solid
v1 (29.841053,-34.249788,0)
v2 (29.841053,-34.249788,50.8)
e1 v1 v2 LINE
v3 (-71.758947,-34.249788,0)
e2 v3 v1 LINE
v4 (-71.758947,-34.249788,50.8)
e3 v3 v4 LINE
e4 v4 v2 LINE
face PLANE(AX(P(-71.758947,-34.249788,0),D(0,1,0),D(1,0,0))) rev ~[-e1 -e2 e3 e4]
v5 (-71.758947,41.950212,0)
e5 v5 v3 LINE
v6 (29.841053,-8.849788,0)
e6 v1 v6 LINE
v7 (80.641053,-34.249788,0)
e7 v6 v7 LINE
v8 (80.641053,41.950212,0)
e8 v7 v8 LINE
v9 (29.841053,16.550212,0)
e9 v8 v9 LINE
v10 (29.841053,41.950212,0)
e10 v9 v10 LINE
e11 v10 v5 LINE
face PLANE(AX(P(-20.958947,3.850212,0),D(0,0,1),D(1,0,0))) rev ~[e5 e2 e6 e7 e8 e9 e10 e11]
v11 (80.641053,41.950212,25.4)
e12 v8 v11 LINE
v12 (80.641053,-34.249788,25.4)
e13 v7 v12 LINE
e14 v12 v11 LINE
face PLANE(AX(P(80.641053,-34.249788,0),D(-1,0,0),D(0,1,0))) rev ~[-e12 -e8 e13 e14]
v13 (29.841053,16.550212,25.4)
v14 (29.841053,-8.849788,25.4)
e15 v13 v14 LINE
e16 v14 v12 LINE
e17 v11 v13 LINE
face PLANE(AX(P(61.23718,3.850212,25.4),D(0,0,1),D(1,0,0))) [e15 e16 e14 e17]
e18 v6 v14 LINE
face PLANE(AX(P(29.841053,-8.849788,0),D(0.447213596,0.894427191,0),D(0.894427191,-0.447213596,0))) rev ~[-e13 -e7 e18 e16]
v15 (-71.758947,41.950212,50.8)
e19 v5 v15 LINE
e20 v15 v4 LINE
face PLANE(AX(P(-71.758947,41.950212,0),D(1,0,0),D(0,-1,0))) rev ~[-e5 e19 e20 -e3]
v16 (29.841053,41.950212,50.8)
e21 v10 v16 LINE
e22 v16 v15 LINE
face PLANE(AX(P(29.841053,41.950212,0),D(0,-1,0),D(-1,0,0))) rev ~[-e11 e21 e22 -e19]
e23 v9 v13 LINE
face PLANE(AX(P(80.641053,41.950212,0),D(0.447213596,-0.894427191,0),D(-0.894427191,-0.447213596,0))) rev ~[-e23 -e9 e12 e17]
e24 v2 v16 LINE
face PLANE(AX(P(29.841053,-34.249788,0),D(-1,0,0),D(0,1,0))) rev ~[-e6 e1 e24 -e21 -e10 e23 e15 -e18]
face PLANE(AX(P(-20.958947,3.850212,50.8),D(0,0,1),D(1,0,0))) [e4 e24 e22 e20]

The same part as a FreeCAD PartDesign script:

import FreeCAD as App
import Part
import Sketcher
from FreeCAD import Vector
Q = App.Units.Quantity


def add_polygon(sketch, points):
    """Adds a closed chain of lines whose ends are joined by coincident constraints."""
    first, n = sketch.GeometryCount, len(points)
    for a, b in zip(points, points[1:] + points[:1]):
        sketch.addGeometry(Part.LineSegment(App.Vector(*a, 0), App.Vector(*b, 0)), False)
    for i in range(n):
        sketch.addConstraint(Sketcher.Constraint("Coincident", first + i, 2, first + (i + 1) % n, 1))

doc = App.newDocument("Part")
body = doc.addObject("PartDesign::Body", "Body")

sketch1 = body.newObject("Sketcher::SketchObject", "Sketch")
sketch1.AttachmentSupport = (doc.getObject("XY_Plane"), [""])
sketch1.MapMode = "FlatFace"
add_polygon(sketch1, [(81, 42), (30, 17), (30, -9), (81, -34)])
sketch1.addConstraint(Sketcher.Constraint("Vertical", 1))
sketch1.addConstraint(Sketcher.Constraint("Vertical", 3))
sketch1.addConstraint(Sketcher.Constraint("Equal", 0, 2))
sketch1.addConstraint(Sketcher.Constraint("DistanceY", 1, 2, 1, 1, Q("1 in")))
sketch1.addConstraint(Sketcher.Constraint("DistanceY", 3, 1, 3, 2, Q("3 in")))
sketch1.addConstraint(Sketcher.Constraint("DistanceX", 1, 2, 2, 2, Q("2 in")))
sketch1.addConstraint(Sketcher.Constraint("DistanceY", -1, 1, 0, 2, 16.550212))
sketch1.addConstraint(Sketcher.Constraint("DistanceX", -1, 1, 0, 2, 29.841053))
pad1 = body.newObject("PartDesign::Pad", "Pad")
pad1.Profile = sketch1
pad1.Length = Q("1 in")

sketch2 = body.newObject("Sketcher::SketchObject", "Sketch001")
sketch2.AttachmentSupport = (doc.getObject("XY_Plane"), [""])
sketch2.MapMode = "FlatFace"
add_polygon(sketch2, [(30, 42), (-72, 42), (-72, -34), (30, -34)])
sketch2.addConstraint(Sketcher.Constraint("Horizontal", 0))
sketch2.addConstraint(Sketcher.Constraint("Vertical", 1))
sketch2.addConstraint(Sketcher.Constraint("Horizontal", 2))
sketch2.addConstraint(Sketcher.Constraint("Vertical", 3))
sketch2.addConstraint(Sketcher.Constraint("DistanceX", 0, 2, 0, 1, Q("4 in")))
sketch2.addConstraint(Sketcher.Constraint("DistanceY", 1, 2, 1, 1, Q("3 in")))
sketch2.addConstraint(Sketcher.Constraint("DistanceY", 1, 2, -1, 1, 34.249788))
sketch2.addConstraint(Sketcher.Constraint("DistanceX", 0, 2, -1, 1, 71.758947))
pad2 = body.newObject("PartDesign::Pad", "Pad001")
pad2.Profile = sketch2
pad2.Length = Q("2 in")

doc.recompute()
